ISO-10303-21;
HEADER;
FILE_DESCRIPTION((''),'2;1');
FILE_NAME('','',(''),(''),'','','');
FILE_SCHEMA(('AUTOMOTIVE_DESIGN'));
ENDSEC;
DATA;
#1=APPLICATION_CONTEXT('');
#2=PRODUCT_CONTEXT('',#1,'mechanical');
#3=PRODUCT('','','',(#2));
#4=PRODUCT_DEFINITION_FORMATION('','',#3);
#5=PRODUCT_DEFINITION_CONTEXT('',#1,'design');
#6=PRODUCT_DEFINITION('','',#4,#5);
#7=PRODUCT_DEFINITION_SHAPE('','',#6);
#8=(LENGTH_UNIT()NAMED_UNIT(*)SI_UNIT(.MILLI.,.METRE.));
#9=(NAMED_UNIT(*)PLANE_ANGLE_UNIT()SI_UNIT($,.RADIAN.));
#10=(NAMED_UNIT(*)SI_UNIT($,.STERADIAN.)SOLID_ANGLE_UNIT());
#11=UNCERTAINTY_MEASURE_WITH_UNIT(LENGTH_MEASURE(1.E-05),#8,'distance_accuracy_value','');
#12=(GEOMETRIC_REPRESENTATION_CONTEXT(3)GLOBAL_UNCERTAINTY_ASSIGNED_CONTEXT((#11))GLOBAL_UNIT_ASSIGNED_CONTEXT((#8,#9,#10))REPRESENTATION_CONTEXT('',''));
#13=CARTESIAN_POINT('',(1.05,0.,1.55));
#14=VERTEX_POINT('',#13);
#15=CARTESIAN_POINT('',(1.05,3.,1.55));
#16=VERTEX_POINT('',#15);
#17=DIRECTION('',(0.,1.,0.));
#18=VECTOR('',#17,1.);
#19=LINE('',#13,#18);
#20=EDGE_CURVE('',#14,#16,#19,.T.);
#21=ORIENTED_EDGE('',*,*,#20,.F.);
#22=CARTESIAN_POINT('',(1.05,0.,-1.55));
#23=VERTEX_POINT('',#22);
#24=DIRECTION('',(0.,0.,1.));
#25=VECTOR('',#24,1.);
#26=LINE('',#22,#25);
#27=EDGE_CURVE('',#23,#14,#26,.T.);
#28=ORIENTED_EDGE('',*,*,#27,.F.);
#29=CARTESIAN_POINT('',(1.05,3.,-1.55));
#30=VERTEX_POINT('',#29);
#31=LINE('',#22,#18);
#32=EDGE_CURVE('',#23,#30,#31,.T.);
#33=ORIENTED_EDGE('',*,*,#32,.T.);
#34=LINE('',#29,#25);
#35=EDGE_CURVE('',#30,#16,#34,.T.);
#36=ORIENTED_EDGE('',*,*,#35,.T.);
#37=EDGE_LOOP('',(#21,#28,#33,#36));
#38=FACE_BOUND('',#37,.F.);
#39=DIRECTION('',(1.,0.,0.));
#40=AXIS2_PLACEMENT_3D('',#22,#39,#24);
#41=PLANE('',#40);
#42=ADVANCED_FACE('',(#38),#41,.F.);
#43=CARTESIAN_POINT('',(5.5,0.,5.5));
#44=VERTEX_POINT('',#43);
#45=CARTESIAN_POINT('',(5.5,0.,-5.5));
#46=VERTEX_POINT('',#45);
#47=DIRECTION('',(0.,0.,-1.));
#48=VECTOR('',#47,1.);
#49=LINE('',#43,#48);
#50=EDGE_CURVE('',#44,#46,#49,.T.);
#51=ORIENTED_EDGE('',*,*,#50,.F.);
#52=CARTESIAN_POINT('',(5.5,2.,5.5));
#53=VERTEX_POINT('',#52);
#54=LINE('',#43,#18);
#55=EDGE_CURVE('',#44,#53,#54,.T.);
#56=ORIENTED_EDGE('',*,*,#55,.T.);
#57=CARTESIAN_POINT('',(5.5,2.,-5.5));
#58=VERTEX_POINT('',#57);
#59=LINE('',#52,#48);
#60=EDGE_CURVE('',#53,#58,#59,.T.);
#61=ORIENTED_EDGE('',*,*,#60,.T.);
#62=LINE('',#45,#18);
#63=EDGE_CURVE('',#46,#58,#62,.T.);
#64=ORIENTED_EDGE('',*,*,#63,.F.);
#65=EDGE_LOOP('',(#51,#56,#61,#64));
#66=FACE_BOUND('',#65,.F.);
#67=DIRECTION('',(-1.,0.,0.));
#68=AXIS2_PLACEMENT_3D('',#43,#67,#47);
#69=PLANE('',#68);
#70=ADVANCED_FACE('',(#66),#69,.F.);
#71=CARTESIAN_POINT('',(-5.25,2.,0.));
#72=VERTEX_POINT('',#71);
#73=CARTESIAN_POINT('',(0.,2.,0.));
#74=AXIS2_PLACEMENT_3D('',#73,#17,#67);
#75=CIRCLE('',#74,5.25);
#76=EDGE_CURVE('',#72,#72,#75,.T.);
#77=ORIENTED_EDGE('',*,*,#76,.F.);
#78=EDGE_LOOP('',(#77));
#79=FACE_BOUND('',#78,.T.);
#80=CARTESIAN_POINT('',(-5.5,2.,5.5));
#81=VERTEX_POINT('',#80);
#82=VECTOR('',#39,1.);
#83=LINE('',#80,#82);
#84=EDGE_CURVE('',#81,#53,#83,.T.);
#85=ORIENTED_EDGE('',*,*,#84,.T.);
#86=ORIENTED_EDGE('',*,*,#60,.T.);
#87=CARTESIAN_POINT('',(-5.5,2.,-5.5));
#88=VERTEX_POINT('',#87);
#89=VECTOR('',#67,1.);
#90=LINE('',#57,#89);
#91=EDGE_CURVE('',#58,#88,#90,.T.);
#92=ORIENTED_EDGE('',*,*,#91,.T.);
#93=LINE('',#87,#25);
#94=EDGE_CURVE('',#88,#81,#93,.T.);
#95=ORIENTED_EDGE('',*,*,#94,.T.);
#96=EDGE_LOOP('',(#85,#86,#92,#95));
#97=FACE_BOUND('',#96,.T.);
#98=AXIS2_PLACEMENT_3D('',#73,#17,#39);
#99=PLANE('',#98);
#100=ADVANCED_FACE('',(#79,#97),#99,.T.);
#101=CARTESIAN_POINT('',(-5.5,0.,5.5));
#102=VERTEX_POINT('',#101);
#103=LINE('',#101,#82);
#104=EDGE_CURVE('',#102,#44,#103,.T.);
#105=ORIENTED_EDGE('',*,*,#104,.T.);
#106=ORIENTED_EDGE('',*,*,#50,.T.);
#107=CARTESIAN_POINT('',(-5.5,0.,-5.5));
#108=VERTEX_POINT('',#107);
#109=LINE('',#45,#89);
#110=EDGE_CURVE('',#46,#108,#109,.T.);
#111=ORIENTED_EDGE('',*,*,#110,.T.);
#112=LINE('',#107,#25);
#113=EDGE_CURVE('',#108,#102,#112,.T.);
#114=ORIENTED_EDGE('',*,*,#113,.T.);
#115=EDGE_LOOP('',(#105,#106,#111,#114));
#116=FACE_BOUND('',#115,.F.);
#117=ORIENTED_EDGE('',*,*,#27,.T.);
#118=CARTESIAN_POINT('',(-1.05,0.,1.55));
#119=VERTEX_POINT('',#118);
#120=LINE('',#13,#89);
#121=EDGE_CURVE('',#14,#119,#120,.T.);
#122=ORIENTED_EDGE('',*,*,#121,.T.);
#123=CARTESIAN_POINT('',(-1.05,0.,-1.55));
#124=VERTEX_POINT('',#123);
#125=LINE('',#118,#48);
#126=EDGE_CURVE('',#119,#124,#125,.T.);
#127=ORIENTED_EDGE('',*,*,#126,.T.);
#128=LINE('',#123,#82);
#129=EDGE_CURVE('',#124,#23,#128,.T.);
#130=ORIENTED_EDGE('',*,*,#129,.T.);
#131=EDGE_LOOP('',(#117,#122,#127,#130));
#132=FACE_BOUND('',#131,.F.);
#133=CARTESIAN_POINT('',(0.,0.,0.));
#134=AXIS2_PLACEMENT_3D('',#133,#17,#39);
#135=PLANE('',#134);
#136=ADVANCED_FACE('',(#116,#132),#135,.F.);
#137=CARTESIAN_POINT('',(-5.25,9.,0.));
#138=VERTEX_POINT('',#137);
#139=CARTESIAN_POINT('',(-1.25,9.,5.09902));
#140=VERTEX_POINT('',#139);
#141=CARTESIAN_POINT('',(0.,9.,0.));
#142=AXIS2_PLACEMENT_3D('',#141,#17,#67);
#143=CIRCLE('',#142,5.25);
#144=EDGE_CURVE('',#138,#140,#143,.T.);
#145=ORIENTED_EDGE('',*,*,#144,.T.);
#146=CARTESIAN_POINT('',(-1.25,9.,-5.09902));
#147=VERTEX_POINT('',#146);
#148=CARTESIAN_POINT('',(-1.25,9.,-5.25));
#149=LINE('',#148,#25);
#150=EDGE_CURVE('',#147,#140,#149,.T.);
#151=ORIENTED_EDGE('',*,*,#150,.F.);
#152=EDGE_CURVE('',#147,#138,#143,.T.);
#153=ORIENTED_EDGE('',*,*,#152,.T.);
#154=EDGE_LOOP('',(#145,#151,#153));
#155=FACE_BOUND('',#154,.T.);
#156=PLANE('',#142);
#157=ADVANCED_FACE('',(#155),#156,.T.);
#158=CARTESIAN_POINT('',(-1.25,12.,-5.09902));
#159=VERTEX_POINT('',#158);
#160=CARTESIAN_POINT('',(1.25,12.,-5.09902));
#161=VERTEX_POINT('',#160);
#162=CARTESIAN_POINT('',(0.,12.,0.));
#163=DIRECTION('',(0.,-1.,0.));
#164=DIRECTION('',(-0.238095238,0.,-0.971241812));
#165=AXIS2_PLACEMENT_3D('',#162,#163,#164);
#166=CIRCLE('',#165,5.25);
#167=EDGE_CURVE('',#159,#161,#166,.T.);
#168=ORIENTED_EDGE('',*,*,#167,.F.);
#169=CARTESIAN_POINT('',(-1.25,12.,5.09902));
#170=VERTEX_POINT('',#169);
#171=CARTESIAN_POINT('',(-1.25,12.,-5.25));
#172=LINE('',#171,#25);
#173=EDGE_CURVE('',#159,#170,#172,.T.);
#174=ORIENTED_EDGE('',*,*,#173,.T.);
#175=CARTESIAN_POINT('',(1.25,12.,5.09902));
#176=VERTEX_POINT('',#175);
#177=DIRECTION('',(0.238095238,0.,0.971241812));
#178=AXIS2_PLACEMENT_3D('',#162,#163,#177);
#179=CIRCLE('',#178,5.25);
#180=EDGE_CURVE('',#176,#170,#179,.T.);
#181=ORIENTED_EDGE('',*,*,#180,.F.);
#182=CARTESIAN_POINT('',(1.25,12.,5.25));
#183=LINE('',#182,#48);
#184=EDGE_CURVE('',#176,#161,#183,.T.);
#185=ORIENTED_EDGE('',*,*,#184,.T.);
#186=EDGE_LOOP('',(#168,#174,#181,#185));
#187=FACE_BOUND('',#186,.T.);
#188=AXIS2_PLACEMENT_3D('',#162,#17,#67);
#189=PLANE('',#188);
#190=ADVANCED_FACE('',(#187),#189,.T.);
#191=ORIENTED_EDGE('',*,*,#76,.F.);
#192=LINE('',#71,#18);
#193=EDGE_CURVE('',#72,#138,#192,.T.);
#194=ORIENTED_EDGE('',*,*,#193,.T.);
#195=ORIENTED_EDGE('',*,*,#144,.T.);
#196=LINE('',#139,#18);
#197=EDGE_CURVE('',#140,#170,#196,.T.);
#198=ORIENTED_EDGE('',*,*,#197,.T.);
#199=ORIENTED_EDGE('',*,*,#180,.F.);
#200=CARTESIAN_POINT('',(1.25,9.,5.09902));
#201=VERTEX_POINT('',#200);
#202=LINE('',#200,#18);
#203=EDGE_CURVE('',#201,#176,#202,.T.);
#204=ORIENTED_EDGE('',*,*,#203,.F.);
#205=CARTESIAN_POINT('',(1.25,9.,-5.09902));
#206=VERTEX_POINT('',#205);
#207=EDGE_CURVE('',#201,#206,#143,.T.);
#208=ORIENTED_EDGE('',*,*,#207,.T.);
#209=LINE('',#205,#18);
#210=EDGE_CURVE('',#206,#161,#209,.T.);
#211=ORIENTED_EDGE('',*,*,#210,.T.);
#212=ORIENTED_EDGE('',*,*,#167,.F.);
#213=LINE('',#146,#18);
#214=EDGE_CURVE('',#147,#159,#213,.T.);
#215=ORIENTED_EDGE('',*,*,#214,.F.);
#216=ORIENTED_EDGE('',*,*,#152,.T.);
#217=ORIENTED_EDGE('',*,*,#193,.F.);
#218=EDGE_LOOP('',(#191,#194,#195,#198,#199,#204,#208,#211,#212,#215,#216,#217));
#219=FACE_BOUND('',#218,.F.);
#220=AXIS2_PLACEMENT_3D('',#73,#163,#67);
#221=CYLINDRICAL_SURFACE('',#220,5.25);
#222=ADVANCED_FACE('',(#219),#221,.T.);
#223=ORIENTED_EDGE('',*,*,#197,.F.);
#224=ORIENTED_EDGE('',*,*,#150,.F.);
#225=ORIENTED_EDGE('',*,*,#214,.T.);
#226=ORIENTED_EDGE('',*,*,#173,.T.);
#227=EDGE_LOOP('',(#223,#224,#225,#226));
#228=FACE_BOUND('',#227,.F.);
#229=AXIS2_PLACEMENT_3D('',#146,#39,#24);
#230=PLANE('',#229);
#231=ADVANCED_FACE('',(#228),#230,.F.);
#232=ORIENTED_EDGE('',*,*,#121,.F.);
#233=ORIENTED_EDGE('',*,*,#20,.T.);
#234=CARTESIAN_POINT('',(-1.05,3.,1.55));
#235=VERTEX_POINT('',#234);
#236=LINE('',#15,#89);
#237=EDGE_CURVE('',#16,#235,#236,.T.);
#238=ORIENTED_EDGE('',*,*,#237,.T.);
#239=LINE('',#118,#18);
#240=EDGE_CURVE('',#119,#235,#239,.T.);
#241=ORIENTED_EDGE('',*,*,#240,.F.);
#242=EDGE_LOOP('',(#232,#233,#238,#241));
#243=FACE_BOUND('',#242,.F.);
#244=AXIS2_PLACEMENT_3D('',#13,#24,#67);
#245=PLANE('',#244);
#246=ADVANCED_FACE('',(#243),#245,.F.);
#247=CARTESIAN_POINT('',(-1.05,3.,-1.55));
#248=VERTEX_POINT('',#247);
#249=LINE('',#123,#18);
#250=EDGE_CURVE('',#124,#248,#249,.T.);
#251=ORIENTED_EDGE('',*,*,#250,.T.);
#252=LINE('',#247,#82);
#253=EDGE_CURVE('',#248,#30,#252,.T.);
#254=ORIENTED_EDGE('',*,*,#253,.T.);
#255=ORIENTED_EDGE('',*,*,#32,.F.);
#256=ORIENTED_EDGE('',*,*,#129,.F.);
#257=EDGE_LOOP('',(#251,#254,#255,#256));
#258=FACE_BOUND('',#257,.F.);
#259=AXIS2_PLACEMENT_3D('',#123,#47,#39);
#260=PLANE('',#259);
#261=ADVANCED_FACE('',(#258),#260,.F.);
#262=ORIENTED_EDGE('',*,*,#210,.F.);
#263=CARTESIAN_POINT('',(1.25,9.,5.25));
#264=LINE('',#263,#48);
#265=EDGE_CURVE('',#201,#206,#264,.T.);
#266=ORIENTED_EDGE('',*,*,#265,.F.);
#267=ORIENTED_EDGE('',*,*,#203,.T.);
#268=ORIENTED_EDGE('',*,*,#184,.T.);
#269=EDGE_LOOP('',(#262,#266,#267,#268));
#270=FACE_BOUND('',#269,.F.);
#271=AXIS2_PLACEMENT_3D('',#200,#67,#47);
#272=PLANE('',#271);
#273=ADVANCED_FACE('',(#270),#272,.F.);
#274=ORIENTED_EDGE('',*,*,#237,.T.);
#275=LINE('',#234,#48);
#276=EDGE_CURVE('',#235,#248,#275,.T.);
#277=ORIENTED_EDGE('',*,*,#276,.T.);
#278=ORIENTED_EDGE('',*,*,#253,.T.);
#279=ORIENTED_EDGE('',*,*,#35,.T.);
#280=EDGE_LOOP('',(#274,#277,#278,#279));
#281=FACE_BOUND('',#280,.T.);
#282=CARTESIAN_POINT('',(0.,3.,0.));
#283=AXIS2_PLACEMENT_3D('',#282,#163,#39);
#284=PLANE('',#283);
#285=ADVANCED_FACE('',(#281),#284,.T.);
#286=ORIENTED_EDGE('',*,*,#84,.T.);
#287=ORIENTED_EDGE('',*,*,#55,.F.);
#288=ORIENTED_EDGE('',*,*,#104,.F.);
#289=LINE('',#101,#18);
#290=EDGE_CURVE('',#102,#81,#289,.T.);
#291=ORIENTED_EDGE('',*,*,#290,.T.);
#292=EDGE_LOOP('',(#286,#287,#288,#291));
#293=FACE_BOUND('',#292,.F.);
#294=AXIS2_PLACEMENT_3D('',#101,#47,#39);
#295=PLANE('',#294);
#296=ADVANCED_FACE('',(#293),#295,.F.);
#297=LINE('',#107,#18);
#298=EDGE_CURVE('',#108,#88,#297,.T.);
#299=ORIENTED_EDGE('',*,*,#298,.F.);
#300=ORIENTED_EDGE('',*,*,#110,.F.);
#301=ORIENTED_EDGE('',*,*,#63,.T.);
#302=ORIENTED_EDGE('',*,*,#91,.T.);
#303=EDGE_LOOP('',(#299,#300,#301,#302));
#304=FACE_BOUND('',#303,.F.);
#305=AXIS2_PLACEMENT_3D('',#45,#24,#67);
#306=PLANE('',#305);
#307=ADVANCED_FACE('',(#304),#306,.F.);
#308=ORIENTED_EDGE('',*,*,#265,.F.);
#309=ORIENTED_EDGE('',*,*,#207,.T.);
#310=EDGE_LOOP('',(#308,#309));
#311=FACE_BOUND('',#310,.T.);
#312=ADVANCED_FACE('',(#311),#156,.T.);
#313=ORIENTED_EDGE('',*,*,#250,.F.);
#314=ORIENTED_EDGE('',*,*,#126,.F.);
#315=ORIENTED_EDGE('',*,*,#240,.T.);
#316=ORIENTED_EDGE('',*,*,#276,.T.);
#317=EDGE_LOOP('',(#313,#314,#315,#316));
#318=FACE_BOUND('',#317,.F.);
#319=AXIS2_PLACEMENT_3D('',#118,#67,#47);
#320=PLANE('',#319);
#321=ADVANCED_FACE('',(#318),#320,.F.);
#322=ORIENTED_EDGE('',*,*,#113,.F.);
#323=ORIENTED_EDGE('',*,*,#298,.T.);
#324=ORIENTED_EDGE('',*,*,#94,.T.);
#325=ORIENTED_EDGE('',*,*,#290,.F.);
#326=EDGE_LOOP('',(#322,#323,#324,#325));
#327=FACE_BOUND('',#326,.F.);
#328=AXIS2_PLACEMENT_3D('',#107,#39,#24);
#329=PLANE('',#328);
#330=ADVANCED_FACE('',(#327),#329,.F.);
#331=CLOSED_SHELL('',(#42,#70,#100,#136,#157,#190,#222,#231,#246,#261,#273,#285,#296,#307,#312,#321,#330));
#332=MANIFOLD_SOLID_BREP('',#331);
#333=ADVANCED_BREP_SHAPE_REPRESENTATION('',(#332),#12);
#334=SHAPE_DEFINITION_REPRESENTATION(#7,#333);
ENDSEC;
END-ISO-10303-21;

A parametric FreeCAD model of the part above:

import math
import FreeCAD as App
import Part
import Sketcher
from FreeCAD import Vector
Q = App.Units.Quantity


def add_polygon(sketch, points):
    """Adds a closed chain of lines whose ends are joined by coincident constraints."""
    first, n = sketch.GeometryCount, len(points)
    for a, b in zip(points, points[1:] + points[:1]):
        sketch.addGeometry(Part.LineSegment(App.Vector(*a, 0), App.Vector(*b, 0)), False)
    for i in range(n):
        sketch.addConstraint(Sketcher.Constraint("Coincident", first + i, 2, first + (i + 1) % n, 1))

doc = App.newDocument("Part")
body = doc.addObject("PartDesign::Body", "Body")

# Sketch on XZ plane
sketch1 = doc.addObject("Sketcher::SketchObject", "Sketch")
body.addObject(sketch1)
sketch1.AttachmentSupport = (doc.XZ_Plane, [""])
sketch1.MapMode = "FlatFace"
add_polygon(sketch1, [(6, 6), (6, -6), (-6, -6), (-6, 6)])  # lines 0-3
sketch1.addConstraint([
    Sketcher.Constraint("Vertical", 0),
    Sketcher.Constraint("Horizontal", 1),
    Sketcher.Constraint("Vertical", 2),
    Sketcher.Constraint("Horizontal", 3),
    Sketcher.Constraint("Symmetric", 0, 2, 2, 2, -1, 1),
    Sketcher.Constraint("Equal", 3, 0),
    Sketcher.Constraint("DistanceX", 1, 2, 1, 1, Q("11 mm")),
])
pad1 = doc.addObject("PartDesign::Pad", "Pad")
body.addObject(pad1)
pad1.Profile = sketch1
pad1.Length = 2
pad1.Reversed = True

# Sketch on XZ plane
sketch2 = doc.addObject("Sketcher::SketchObject", "Sketch001")
body.addObject(sketch2)
sketch2.AttachmentSupport = (doc.XZ_Plane, [""])
sketch2.MapMode = "FlatFace"
sketch2.AttachmentOffset = App.Placement(Vector(0, 0, -2), App.Rotation())
sketch2.addGeometry(Part.Circle(Vector(0, 0, 0), Vector(0, 0, 1), 5), False)
sketch2.addConstraint([
    Sketcher.Constraint("Coincident", 0, 3, -1, 1),
    Sketcher.Constraint("Diameter", 0, Q("10.5 mm")),
])
pad2 = doc.addObject("PartDesign::Pad", "Pad001")
body.addObject(pad2)
pad2.Profile = sketch2
pad2.Length = 7
pad2.Reversed = True

# Sketch on XZ plane
sketch3 = doc.addObject("Sketcher::SketchObject", "Sketch002")
body.addObject(sketch3)
sketch3.AttachmentSupport = (doc.XZ_Plane, [""])
sketch3.MapMode = "FlatFace"
sketch3.AttachmentOffset = App.Placement(Vector(0, 0, -9), App.Rotation())
sketch3.addGeometry([
    Part.LineSegment(Vector(-1.2, -5.1, 0), Vector(-1.2, 5.1, 0)),
    Part.ArcOfCircle(Part.Circle(Vector(0, 0, 0), Vector(0, 0, 1), 5.2), math.radians(76), math.radians(104)),
    Part.LineSegment(Vector(1.2, 5.1, 0), Vector(1.2, -5.1, 0)),
    Part.ArcOfCircle(Part.Circle(Vector(0, 0, 0), Vector(0, 0, 1), 5.2), math.radians(-104), math.radians(-76)),
], False)
sketch3.addConstraint([
    Sketcher.Constraint("Coincident", 0, 2, 1, 2),
    Sketcher.Constraint("Coincident", 1, 1, 2, 1),
    Sketcher.Constraint("Coincident", 2, 2, 3, 2),
    Sketcher.Constraint("Coincident", 3, 1, 0, 1),
    Sketcher.Constraint("Vertical", 0),
    Sketcher.Constraint("Vertical", 2),
    Sketcher.Constraint("Coincident", 1, 3, -1, 1),
    Sketcher.Constraint("Coincident", 3, 3, -1, 1),
    Sketcher.Constraint("Equal", 1, 3),
    Sketcher.Constraint("Horizontal", 0, 2, 1, 1),
    Sketcher.Constraint("Radius", 1, Q("5.25 mm")),
    Sketcher.Constraint("DistanceX", 0, 2, 1, 1, Q("2.5 mm")),
])
pad3 = doc.addObject("PartDesign::Pad", "Pad002")
body.addObject(pad3)
pad3.Profile = sketch3
pad3.Length = 3
pad3.Reversed = True

# Sketch on XZ plane
sketch4 = doc.addObject("Sketcher::SketchObject", "Sketch003")
body.addObject(sketch4)
sketch4.AttachmentSupport = (doc.XZ_Plane, [""])
sketch4.MapMode = "FlatFace"
add_polygon(sketch4, [(1.1, -1.6), (1.1, 1.6), (-1.1, 1.6), (-1.1, -1.6)])  # lines 0-3
sketch4.addConstraint([
    Sketcher.Constraint("Vertical", 0),
    Sketcher.Constraint("Horizontal", 1),
    Sketcher.Constraint("Vertical", 2),
    Sketcher.Constraint("Horizontal", 3),
    Sketcher.Constraint("Symmetric", 0, 2, 2, 2, -1, 1),
    Sketcher.Constraint("DistanceX", 1, 2, 1, 1, Q("2.1 mm")),
    Sketcher.Constraint("DistanceY", 0, 1, 0, 2, Q("3.1 mm")),
])
pocket1 = doc.addObject("PartDesign::Pocket", "Pocket")
body.addObject(pocket1)
pocket1.Profile = sketch4
pocket1.Length = 3

doc.recompute()
